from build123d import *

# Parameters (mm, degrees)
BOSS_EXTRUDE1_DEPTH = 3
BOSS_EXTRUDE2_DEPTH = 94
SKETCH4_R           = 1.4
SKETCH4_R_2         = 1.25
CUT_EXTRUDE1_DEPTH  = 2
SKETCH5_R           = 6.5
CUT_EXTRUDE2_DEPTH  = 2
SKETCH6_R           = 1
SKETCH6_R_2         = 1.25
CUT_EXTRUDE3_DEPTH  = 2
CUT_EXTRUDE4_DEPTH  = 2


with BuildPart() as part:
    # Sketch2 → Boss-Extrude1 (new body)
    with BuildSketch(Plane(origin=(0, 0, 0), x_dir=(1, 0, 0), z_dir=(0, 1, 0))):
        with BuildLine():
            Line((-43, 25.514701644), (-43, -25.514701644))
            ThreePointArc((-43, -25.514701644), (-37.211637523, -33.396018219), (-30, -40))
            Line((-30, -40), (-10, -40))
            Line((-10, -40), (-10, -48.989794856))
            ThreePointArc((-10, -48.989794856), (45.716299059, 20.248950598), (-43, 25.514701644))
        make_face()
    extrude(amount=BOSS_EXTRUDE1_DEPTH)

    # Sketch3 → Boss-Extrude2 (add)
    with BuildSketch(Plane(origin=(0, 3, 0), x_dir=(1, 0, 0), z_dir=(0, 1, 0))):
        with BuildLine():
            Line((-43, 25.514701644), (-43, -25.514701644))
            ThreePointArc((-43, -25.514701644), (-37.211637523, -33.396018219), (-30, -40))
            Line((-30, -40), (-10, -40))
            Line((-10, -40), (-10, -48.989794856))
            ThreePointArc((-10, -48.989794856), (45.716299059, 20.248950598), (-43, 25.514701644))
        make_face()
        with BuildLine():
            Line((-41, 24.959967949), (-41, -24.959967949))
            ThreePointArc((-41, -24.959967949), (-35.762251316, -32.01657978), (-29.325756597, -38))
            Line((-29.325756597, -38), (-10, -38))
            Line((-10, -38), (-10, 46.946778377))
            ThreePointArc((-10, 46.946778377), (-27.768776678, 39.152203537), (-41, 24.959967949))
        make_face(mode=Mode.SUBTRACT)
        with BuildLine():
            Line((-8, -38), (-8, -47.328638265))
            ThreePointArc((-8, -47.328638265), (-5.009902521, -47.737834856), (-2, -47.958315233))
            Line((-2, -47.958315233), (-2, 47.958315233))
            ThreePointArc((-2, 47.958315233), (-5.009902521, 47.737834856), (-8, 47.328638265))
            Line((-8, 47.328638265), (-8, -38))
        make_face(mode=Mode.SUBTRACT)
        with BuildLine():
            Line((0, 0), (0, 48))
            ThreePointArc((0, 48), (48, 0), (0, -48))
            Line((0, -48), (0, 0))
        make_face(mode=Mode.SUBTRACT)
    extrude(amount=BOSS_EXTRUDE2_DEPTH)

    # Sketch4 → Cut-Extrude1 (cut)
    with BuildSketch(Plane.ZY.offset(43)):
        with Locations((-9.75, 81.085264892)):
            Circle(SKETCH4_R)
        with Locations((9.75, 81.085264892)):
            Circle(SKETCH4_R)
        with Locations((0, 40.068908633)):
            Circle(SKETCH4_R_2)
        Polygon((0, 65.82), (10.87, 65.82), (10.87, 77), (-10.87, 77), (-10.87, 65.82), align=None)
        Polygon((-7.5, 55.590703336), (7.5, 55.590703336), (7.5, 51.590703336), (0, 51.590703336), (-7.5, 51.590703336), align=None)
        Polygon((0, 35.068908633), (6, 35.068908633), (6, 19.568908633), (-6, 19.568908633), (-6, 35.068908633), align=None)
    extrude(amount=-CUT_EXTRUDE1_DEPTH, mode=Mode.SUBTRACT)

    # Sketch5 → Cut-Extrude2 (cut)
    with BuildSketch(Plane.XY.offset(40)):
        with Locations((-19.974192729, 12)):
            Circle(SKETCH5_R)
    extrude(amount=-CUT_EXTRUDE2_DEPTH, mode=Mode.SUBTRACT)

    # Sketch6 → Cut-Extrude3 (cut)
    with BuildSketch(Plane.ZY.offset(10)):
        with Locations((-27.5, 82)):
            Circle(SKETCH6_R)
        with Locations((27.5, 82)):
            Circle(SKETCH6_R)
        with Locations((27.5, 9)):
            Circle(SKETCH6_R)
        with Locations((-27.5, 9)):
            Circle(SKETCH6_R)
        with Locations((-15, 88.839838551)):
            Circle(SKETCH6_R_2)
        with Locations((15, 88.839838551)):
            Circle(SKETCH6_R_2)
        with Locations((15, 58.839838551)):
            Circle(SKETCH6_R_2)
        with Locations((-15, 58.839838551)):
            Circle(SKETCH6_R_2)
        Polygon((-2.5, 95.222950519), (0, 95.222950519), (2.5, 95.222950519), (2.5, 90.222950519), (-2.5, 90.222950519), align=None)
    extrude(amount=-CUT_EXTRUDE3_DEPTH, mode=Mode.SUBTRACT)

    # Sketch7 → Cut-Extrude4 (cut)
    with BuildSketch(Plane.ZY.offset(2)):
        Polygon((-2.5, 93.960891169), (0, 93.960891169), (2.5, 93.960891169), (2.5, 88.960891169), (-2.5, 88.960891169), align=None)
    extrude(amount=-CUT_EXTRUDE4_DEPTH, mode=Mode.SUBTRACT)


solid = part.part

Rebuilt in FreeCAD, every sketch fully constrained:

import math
import FreeCAD as App
import Part
import Sketcher

V = App.Vector
Q = App.Units.Quantity


def add_polygon(sketch, points):
    """Adds a closed chain of lines whose ends are joined by coincident constraints."""
    first, n = sketch.GeometryCount, len(points)
    for a, b in zip(points, points[1:] + points[:1]):
        sketch.addGeometry(Part.LineSegment(App.Vector(*a, 0), App.Vector(*b, 0)), False)
    for i in range(n):
        sketch.addConstraint(Sketcher.Constraint("Coincident", first + i, 2, first + (i + 1) % n, 1))

doc = App.newDocument("Part")
body = doc.addObject("PartDesign::Body", "Body")

sketch1 = body.newObject("Sketcher::SketchObject", "Sketch")
sketch1.AttachmentSupport = (doc.getObject("XZ_Plane"), [""])
sketch1.MapMode = "FlatFace"
sketch1.addGeometry([
    Part.LineSegment(V(-43, -26, 0), V(-43, 26, 0)),
    Part.ArcOfCircle(Part.Circle(V(0, 0, 0), V(0, 0, 1), 50), math.radians(127), math.radians(149)),
    Part.LineSegment(V(-30, 40, 0), V(-10, 40, 0)),
    Part.LineSegment(V(-10, 40, 0), V(-10, 49, 0)),
    Part.ArcOfCircle(Part.Circle(V(0, 0, 0), V(0, 0, 1), 50), math.radians(-149), math.radians(102)),
], False)
sketch1.addConstraint([
    Sketcher.Constraint("Coincident", 0, 2, 1, 2),
    Sketcher.Constraint("Coincident", 1, 1, 2, 1),
    Sketcher.Constraint("Coincident", 2, 2, 3, 1),
    Sketcher.Constraint("Coincident", 3, 2, 4, 2),
    Sketcher.Constraint("Coincident", 4, 1, 0, 1),
    Sketcher.Constraint("Vertical", 0),
    Sketcher.Constraint("Horizontal", 2),
    Sketcher.Constraint("Vertical", 3),
    Sketcher.Constraint("Coincident", 1, 3, -1, 1),
    Sketcher.Constraint("Coincident", 4, 3, -1, 1),
    Sketcher.Constraint("Equal", 1, 4),
    Sketcher.Constraint("Radius", 1, Q("50 mm")),
    Sketcher.Constraint("DistanceX", 2, 1, 2, 2, Q("20 mm")),
    Sketcher.Constraint("DistanceX", 0, 2, -1, 1, Q("43 mm")),
    Sketcher.Constraint("DistanceX", 1, 1, -1, 1, Q("30 mm")),
])
pad1 = body.newObject("PartDesign::Pad", "Pad")
pad1.Profile = sketch1
pad1.Length = 3
pad1.Reversed = True

sketch2 = body.newObject("Sketcher::SketchObject", "Sketch001")
sketch2.AttachmentSupport = (doc.getObject("XZ_Plane"), [""])
sketch2.MapMode = "FlatFace"
sketch2.AttachmentOffset = App.Placement(V(0, 0, -3), App.Rotation())
sketch2.addGeometry([
    Part.LineSegment(V(-43, -26, 0), V(-43, 26, 0)),
    Part.ArcOfCircle(Part.Circle(V(0, 0, 0), V(0, 0, 1), 50), math.radians(127), math.radians(149)),
    Part.LineSegment(V(-30, 40, 0), V(-10, 40, 0)),
    Part.LineSegment(V(-10, 40, 0), V(-10, 49, 0)),
    Part.ArcOfCircle(Part.Circle(V(0, 0, 0), V(0, 0, 1), 50), math.radians(-149), math.radians(102)),
    Part.LineSegment(V(-41, 25, 0), V(-41, -25, 0)),
    Part.ArcOfCircle(Part.Circle(V(0, 0, 0), V(0, 0, 1), 48), math.radians(-149), math.radians(-102)),
    Part.LineSegment(V(-10, -47, 0), V(-10, 38, 0)),
    Part.LineSegment(V(-10, 38, 0), V(-29, 38, 0)),
    Part.ArcOfCircle(Part.Circle(V(0, 0, 0), V(0, 0, 1), 48), math.radians(128), math.radians(149)),
    Part.ArcOfCircle(Part.Circle(V(0, 0, 0), V(0, 0, 1), 48), math.radians(92.39), math.radians(99.59)),
    Part.LineSegment(V(-8, 47, 0), V(-8, -47, 0)),
    Part.ArcOfCircle(Part.Circle(V(0, 0, 0), V(0, 0, 1), 48), math.radians(-99.59), math.radians(-92.39)),
    Part.LineSegment(V(-2, -48, 0), V(-2, 48, 0)),
    Part.LineSegment(V(0, 48, 0), V(0, -48, 0)),
    Part.ArcOfCircle(Part.Circle(V(0, 0, 0), V(0, 0, 1), 48), math.radians(-90), math.radians(90)),
], False)
sketch2.addConstraint([
    Sketcher.Constraint("Coincident", 0, 2, 1, 2),
    Sketcher.Constraint("Coincident", 1, 1, 2, 1),
    Sketcher.Constraint("Coincident", 2, 2, 3, 1),
    Sketcher.Constraint("Coincident", 3, 2, 4, 2),
    Sketcher.Constraint("Coincident", 4, 1, 0, 1),
    Sketcher.Constraint("Coincident", 5, 2, 6, 1),
    Sketcher.Constraint("Coincident", 6, 2, 7, 1),
    Sketcher.Constraint("Coincident", 7, 2, 8, 1),
    Sketcher.Constraint("Coincident", 8, 2, 9, 1),
    Sketcher.Constraint("Coincident", 9, 2, 5, 1),
    Sketcher.Constraint("Coincident", 10, 2, 11, 1),
    Sketcher.Constraint("Coincident", 11, 2, 12, 1),
    Sketcher.Constraint("Coincident", 12, 2, 13, 1),
    Sketcher.Constraint("Coincident", 13, 2, 10, 1),
    Sketcher.Constraint("Coincident", 14, 1, 15, 2),
    Sketcher.Constraint("Coincident", 15, 1, 14, 2),
    Sketcher.Constraint("Vertical", 0),
    Sketcher.Constraint("Horizontal", 2),
    Sketcher.Constraint("Vertical", 3),
    Sketcher.Constraint("Vertical", 5),
    Sketcher.Constraint("Vertical", 7),
    Sketcher.Constraint("Horizontal", 8),
    Sketcher.Constraint("Vertical", 11),
    Sketcher.Constraint("Vertical", 13),
    Sketcher.Constraint("Vertical", 14),
    Sketcher.Constraint("Coincident", 1, 3, -1, 1),
    Sketcher.Constraint("Coincident", 4, 3, -1, 1),
    Sketcher.Constraint("Coincident", 6, 3, -1, 1),
    Sketcher.Constraint("Coincident", 9, 3, -1, 1),
    Sketcher.Constraint("Coincident", 10, 3, -1, 1),
    Sketcher.Constraint("Coincident", 12, 3, -1, 1),
    Sketcher.Constraint("Coincident", 15, 3, -1, 1),
    Sketcher.Constraint("Equal", 1, 4),
    Sketcher.Constraint("Equal", 6, 9),
    Sketcher.Constraint("Equal", 9, 10),
    Sketcher.Constraint("Equal", 10, 12),
    Sketcher.Constraint("Equal", 12, 15),
    Sketcher.Constraint("PointOnObject", 14, 1, -2),
    Sketcher.Constraint("Vertical", 3, 2, 6, 2),
    Sketcher.Constraint("Radius", 1, Q("50 mm")),
    Sketcher.Constraint("Radius", 6, Q("48 mm")),
    Sketcher.Constraint("DistanceX", 2, 1, 2, 2, Q("20 mm")),
    Sketcher.Constraint("DistanceX", 0, 2, -1, 1, Q("43 mm")),
    Sketcher.Constraint("DistanceX", 1, 1, -1, 1, Q("30 mm")),
    Sketcher.Constraint("DistanceX", 5, 2, -1, 1, Q("41 mm")),
    Sketcher.Constraint("DistanceY", -1, 1, 7, 2, Q("38 mm")),
    Sketcher.Constraint("DistanceX", 10, 2, -1, 1, Q("8 mm")),
    Sketcher.Constraint("DistanceX", 12, 2, -1, 1, Q("2 mm")),
])
pad2 = body.newObject("PartDesign::Pad", "Pad001")
pad2.Profile = sketch2
pad2.Length = 94
pad2.Reversed = True

sketch3 = body.newObject("Sketcher::SketchObject", "Sketch002")
sketch3.AttachmentSupport = (doc.getObject("YZ_Plane"), [""])
sketch3.MapMode = "FlatFace"
sketch3.AttachmentOffset = App.Placement(V(0, 0, -43), App.Rotation())
sketch3.addGeometry(Part.Circle(V(81.1, -9.8, 0), V(0, 0, 1), 1.4), False)
sketch3.addGeometry(Part.Circle(V(81.1, 9.8, 0), V(0, 0, 1), 1.4), False)
sketch3.addGeometry(Part.Circle(V(40.1, 0, 0), V(0, 0, 1), 1.2), False)
add_polygon(sketch3, [(65.8, 10.9), (77, 10.9), (77, -10.9), (65.8, -10.9)])
add_polygon(sketch3, [(55.6, 7.5), (55.6, -7.5), (51.6, -7.5), (51.6, 7.5)])
add_polygon(sketch3, [(35.1, 6), (35.1, -6), (19.6, -6), (19.6, 6)])
sketch3.addConstraint([
    Sketcher.Constraint("Horizontal", 3),
    Sketcher.Constraint("Vertical", 4),
    Sketcher.Constraint("Horizontal", 5),
    Sketcher.Constraint("Vertical", 6),
    Sketcher.Constraint("Vertical", 7),
    Sketcher.Constraint("Horizontal", 8),
    Sketcher.Constraint("Vertical", 9),
    Sketcher.Constraint("Horizontal", 10),
    Sketcher.Constraint("Vertical", 11),
    Sketcher.Constraint("Horizontal", 12),
    Sketcher.Constraint("Vertical", 13),
    Sketcher.Constraint("Horizontal", 14),
    Sketcher.Constraint("Equal", 0, 1),
    Sketcher.Constraint("Symmetric", 0, 3, 1, 3, -1),
    Sketcher.Constraint("PointOnObject", 2, 3, -1),
    Sketcher.Constraint("Diameter", 0, Q("2.8 mm")),
    Sketcher.Constraint("Diameter", 2, Q("2.5 mm")),
    Sketcher.Constraint("DistanceX", 8, 2, 8, 1, Q("4 mm")),
    Sketcher.Constraint("DistanceY", 7, 2, 7, 1, Q("15 mm")),
    Sketcher.Constraint("DistanceY", 11, 2, 11, 1, Q("12 mm")),
    Sketcher.Constraint("DistanceX", 12, 2, 12, 1, Q("15.5 mm")),
    Sketcher.Constraint("DistanceX", -1, 1, 3, 2, Q("77 mm")),
    Sketcher.Constraint("DistanceY", 11, 2, -1, 1, Q("6 mm")),
    Sketcher.Constraint("DistanceX", 11, 2, 2, 3, Q("5 mm")),
    Sketcher.Constraint("DistanceX", 3, 1, 3, 2, Q("11.18 mm")),
    Sketcher.Constraint("DistanceY", 4, 2, 4, 1, Q("21.74 mm")),
    Sketcher.Constraint("DistanceY", 7, 2, -1, 1, Q("7.5 mm")),
    Sketcher.Constraint("DistanceY", 0, 3, 1, 3, Q("19.5 mm")),
    Sketcher.Constraint("DistanceY", -1, 1, 3, 2, Q("10.87 mm")),
    Sketcher.Constraint("DistanceX", -1, 1, 2, 3, Q("40.068909 mm")),
    Sketcher.Constraint("DistanceX", 7, 2, 0, 3, Q("25.494562 mm")),
    Sketcher.Constraint("DistanceX", -1, 1, 0, 3, Q("81.085265 mm")),
])
pocket1 = body.newObject("PartDesign::Pocket", "Pocket")
pocket1.Profile = sketch3
pocket1.Length = 2
pocket1.Reversed = True

sketch4 = body.newObject("Sketcher::SketchObject", "Sketch003")
sketch4.AttachmentSupport = (doc.getObject("XY_Plane"), [""])
sketch4.MapMode = "FlatFace"
sketch4.AttachmentOffset = App.Placement(V(0, 0, 40), App.Rotation())
sketch4.addGeometry(Part.Circle(V(-20, 12, 0), V(0, 0, 1), 6), False)
sketch4.addConstraint([
    Sketcher.Constraint("Diameter", 0, Q("13 mm")),
    Sketcher.Constraint("DistanceY", -1, 1, 0, 3, Q("12 mm")),
    Sketcher.Constraint("DistanceX", 0, 3, -1, 1, Q("19.974193 mm")),
])
pocket2 = body.newObject("PartDesign::Pocket", "Pocket001")
pocket2.Profile = sketch4
pocket2.Length = 2

sketch5 = body.newObject("Sketcher::SketchObject", "Sketch004")
sketch5.AttachmentSupport = (doc.getObject("YZ_Plane"), [""])
sketch5.MapMode = "FlatFace"
sketch5.AttachmentOffset = App.Placement(V(0, 0, -10), App.Rotation())
sketch5.addGeometry(Part.Circle(V(82, -27.5, 0), V(0, 0, 1), 1), False)
sketch5.addGeometry(Part.Circle(V(82, 27.5, 0), V(0, 0, 1), 1), False)
sketch5.addGeometry(Part.Circle(V(9, 27.5, 0), V(0, 0, 1), 1), False)
sketch5.addGeometry(Part.Circle(V(9, -27.5, 0), V(0, 0, 1), 1), False)
sketch5.addGeometry(Part.Circle(V(88.8, -15, 0), V(0, 0, 1), 1.2), False)
sketch5.addGeometry(Part.Circle(V(88.8, 15, 0), V(0, 0, 1), 1.2), False)
sketch5.addGeometry(Part.Circle(V(58.8, 15, 0), V(0, 0, 1), 1.2), False)
sketch5.addGeometry(Part.Circle(V(58.8, -15, 0), V(0, 0, 1), 1.2), False)
add_polygon(sketch5, [(95.2, 2.5), (95.2, -2.5), (90.2, -2.5), (90.2, 2.5)])
sketch5.addConstraint([
    Sketcher.Constraint("Vertical", 8),
    Sketcher.Constraint("Horizontal", 9),
    Sketcher.Constraint("Vertical", 10),
    Sketcher.Constraint("Horizontal", 11),
    Sketcher.Constraint("Equal", 0, 1),
    Sketcher.Constraint("Equal", 1, 2),
    Sketcher.Constraint("Equal", 2, 3),
    Sketcher.Constraint("Equal", 4, 5),
    Sketcher.Constraint("Equal", 5, 6),
    Sketcher.Constraint("Equal", 6, 7),
    Sketcher.Constraint("Symmetric", 0, 3, 1, 3, -1),
    Sketcher.Constraint("Symmetric", 2, 3, 3, 3, -1),
    Sketcher.Constraint("Symmetric", 4, 3, 5, 3, -1),
    Sketcher.Constraint("Symmetric", 6, 3, 7, 3, -1),
    Sketcher.Constraint("Horizontal", 1, 3, 2, 3),
    Sketcher.Constraint("Horizontal", 5, 3, 6, 3),
    Sketcher.Constraint("Equal", 11, 8),
    Sketcher.Constraint("Diameter", 0, Q("2 mm")),
    Sketcher.Constraint("Diameter", 4, Q("2.5 mm")),
    Sketcher.Constraint("DistanceX", 9, 2, 9, 1, Q("5 mm")),
    Sketcher.Constraint("DistanceX", -1, 1, 0, 3, Q("82 mm")),
    Sketcher.Constraint("DistanceX", -1, 1, 2, 3, Q("9 mm")),
    Sketcher.Constraint("DistanceY", 4, 3, -1, 1, Q("15 mm")),
    Sketcher.Constraint("DistanceY", 0, 3, 1, 3, Q("55 mm")),
    Sketcher.Constraint("DistanceX", 6, 3, 5, 3, Q("30 mm")),
    Sketcher.Constraint("DistanceY", 0, 3, 8, 2, Q("25 mm")),
    Sketcher.Constraint("DistanceX", -1, 1, 4, 3, Q("88.839839 mm")),
    Sketcher.Constraint("DistanceX", -1, 1, 8, 2, Q("95.222951 mm")),
])
pocket3 = body.newObject("PartDesign::Pocket", "Pocket002")
pocket3.Profile = sketch5
pocket3.Length = 2
pocket3.Reversed = True

sketch6 = body.newObject("Sketcher::SketchObject", "Sketch005")
sketch6.AttachmentSupport = (doc.getObject("YZ_Plane"), [""])
sketch6.MapMode = "FlatFace"
sketch6.AttachmentOffset = App.Placement(V(0, 0, -2), App.Rotation())
add_polygon(sketch6, [(94, 2), (94, -2), (89, -2), (89, 2)])
sketch6.addConstraint([
    Sketcher.Constraint("Vertical", 0),
    Sketcher.Constraint("Horizontal", 1),
    Sketcher.Constraint("Vertical", 2),
    Sketcher.Constraint("Horizontal", 3),
    Sketcher.Constraint("Equal", 3, 0),
    Sketcher.Constraint("DistanceX", 1, 2, 1, 1, Q("5 mm")),
    Sketcher.Constraint("DistanceY", 0, 2, -1, 1, Q("2.5 mm")),
    Sketcher.Constraint("DistanceX", -1, 1, 0, 2, Q("93.960891 mm")),
])
pocket4 = body.newObject("PartDesign::Pocket", "Pocket003")
pocket4.Profile = sketch6
pocket4.Length = 2
pocket4.Reversed = True

doc.recompute()
